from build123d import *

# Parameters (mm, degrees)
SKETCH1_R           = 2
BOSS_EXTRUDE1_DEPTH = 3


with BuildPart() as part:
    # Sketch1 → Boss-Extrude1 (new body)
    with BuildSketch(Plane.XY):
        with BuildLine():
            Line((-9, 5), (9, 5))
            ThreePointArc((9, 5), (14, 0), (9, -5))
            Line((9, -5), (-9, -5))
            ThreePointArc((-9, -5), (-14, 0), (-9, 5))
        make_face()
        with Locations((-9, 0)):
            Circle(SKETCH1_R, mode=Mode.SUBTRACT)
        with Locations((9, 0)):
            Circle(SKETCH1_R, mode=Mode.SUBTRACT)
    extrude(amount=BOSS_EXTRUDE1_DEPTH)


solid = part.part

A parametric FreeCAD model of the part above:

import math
import FreeCAD as App
import Part
import Sketcher
from FreeCAD import Vector
Q = App.Units.Quantity

doc = App.newDocument("Part")
body = doc.addObject("PartDesign::Body", "Body")

# Sketch on XY plane
sketch1 = body.newObject("Sketcher::SketchObject", "Sketch")
sketch1.AttachmentSupport = (doc.getObject("XY_Plane"), [""])
sketch1.MapMode = "FlatFace"
sketch1.addGeometry([
    Part.LineSegment(Vector(9, 5, 0), Vector(-9, 5, 0)),  # 0
    Part.ArcOfCircle(Part.Circle(Vector(-9, 0, 0), Vector(0, 0, 1), 5), math.radians(90), math.radians(270)),  # 1
    Part.LineSegment(Vector(-9, -5, 0), Vector(9, -5, 0)),  # 2
    Part.ArcOfCircle(Part.Circle(Vector(9, 0, 0), Vector(0, 0, 1), 5), math.radians(-90), math.radians(90)),  # 3
    Part.Circle(Vector(9, 0, 0), Vector(0, 0, 1), 2),  # 4
    Part.Circle(Vector(-9, 0, 0), Vector(0, 0, 1), 2),  # 5
], False)
sketch1.addConstraint([
    Sketcher.Constraint("Tangent", 0, 2, 1, 1),
    Sketcher.Constraint("Tangent", 1, 2, 2, 1),
    Sketcher.Constraint("Tangent", 2, 2, 3, 1),
    Sketcher.Constraint("Tangent", 3, 2, 0, 1),
    Sketcher.Constraint("Horizontal", 0),
    Sketcher.Constraint("Horizontal", 2),
    Sketcher.Constraint("Coincident", 4, 3, 3, 3),
    Sketcher.Constraint("Coincident", 5, 3, 1, 3),
    Sketcher.Constraint("Equal", 4, 5),
    Sketcher.Constraint("Symmetric", 1, 3, 3, 3, -1, 1),
    Sketcher.Constraint("Diameter", 4, Q("4 mm")),
    Sketcher.Constraint("Radius", 1, Q("5 mm")),
    Sketcher.Constraint("DistanceX", 0, 2, 0, 1, Q("18 mm")),
])
pad1 = body.newObject("PartDesign::Pad", "Pad")
pad1.Profile = sketch1
pad1.Length = 3

doc.recompute()
